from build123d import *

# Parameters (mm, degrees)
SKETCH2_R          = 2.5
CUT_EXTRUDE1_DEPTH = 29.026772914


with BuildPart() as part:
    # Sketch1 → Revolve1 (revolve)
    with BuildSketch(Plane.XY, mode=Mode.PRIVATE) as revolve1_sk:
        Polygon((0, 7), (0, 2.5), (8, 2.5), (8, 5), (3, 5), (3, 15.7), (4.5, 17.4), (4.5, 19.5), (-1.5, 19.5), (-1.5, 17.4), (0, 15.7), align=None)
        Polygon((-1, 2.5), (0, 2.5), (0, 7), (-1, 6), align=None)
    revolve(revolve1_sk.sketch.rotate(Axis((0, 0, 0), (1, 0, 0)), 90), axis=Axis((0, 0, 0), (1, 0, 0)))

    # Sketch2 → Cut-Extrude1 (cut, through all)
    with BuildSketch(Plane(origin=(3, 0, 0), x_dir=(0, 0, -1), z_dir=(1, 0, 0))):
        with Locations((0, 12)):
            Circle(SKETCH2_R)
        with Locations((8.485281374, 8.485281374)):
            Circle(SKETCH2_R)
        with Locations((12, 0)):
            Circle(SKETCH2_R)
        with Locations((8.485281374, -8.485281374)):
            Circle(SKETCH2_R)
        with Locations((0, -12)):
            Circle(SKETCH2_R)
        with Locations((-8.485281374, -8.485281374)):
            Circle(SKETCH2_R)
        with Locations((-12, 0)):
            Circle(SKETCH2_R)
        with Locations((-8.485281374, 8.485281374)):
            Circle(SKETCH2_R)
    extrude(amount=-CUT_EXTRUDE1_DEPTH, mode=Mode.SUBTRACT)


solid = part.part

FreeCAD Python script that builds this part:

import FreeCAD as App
import Part
import Sketcher
Q = App.Units.Quantity


def add_polygon(sketch, points):
    """Adds a closed chain of lines whose ends are joined by coincident constraints."""
    first, n = sketch.GeometryCount, len(points)
    for a, b in zip(points, points[1:] + points[:1]):
        sketch.addGeometry(Part.LineSegment(App.Vector(*a, 0), App.Vector(*b, 0)), False)
    for i in range(n):
        sketch.addConstraint(Sketcher.Constraint("Coincident", first + i, 2, first + (i + 1) % n, 1))

doc = App.newDocument("Part")
params = doc.addObject("Spreadsheet::Sheet", "Params")
for row, (alias, value) in enumerate([
    ("sketch1_width", "5 mm"),
    ("sketch1_width2", "6 mm"),
    ("sketch1_width3", "9 mm"),
    ("sketch1_height", "2.5 mm"),
    ("sketch1_height2", "10.7 mm"),
    ("revolution_angle", "360 deg"),
    ("sketch2_diameter", "5 mm"),
], start=1):
    params.set(f"A{row}", alias)
    params.set(f"B{row}", "=" + value)
    params.setAlias(f"B{row}", alias)

body = doc.addObject("PartDesign::Body", "Body")

# Sketch on XY plane
sketch1 = doc.addObject("Sketcher::SketchObject", "Sketch")
body.addObject(sketch1)
sketch1.AttachmentSupport = (doc.XY_Plane, [""])
sketch1.MapMode = "FlatFace"
add_polygon(sketch1, [(8, 2.5), (8, 5), (3, 5), (3, 15.7), (4.5, 17.4), (4.5, 19.5), (-1.5, 19.5), (-1.5, 17.4), (0, 15.7), (0, 7), (-1, 6), (-1, 2.5)])  # lines 0-11
sketch1.addConstraint(Sketcher.Constraint("Vertical", 0))
sketch1.addConstraint(Sketcher.Constraint("Horizontal", 1))
sketch1.addConstraint(Sketcher.Constraint("Vertical", 2))
sketch1.addConstraint(Sketcher.Constraint("Vertical", 4))
sketch1.addConstraint(Sketcher.Constraint("Horizontal", 5))
sketch1.addConstraint(Sketcher.Constraint("Vertical", 6))
sketch1.addConstraint(Sketcher.Constraint("Vertical", 8))
sketch1.addConstraint(Sketcher.Constraint("Vertical", 10))
sketch1.addConstraint(Sketcher.Constraint("Horizontal", 11))
sketch1.addConstraint(Sketcher.Constraint("PointOnObject", 7, 2, -2))
sketch1.addConstraint(Sketcher.Constraint("Horizontal", 3, 2, 6, 2))
sketch1.addConstraint(Sketcher.Constraint("Horizontal", 2, 2, 7, 2))
sketch1.addConstraint(Sketcher.Constraint("Equal", 3, 7))
sketch1.addConstraint(Sketcher.Constraint("DistanceX", 1, 2, 1, 1, Q("5 mm")))
sketch1.addConstraint(Sketcher.Constraint("DistanceX", 5, 2, 5, 1, Q("6 mm")))
sketch1.addConstraint(Sketcher.Constraint("DistanceX", 11, 1, 11, 2, Q("9 mm")))
sketch1.addConstraint(Sketcher.Constraint("Angle", 9, Q("-135 deg")))
sketch1.addConstraint(Sketcher.Constraint("DistanceY", 0, 1, 0, 2, Q("2.5 mm")))
sketch1.addConstraint(Sketcher.Constraint("DistanceY", 2, 1, 2, 2, Q("10.7 mm")))
sketch1.addConstraint(Sketcher.Constraint("DistanceY", 4, 1, 4, 2, Q("2.1 mm")))
sketch1.addConstraint(Sketcher.Constraint("DistanceY", 8, 2, 8, 1, Q("8.7 mm")))
sketch1.addConstraint(Sketcher.Constraint("DistanceY", 10, 2, 10, 1, Q("3.5 mm")))
sketch1.addConstraint(Sketcher.Constraint("DistanceY", -1, 1, 0, 2, Q("5 mm")))
sketch1.addConstraint(Sketcher.Constraint("DistanceY", -1, 1, 3, 2, Q("17.4 mm")))
sketch1.setExpression("Constraints[25]", "Params.sketch1_width")
sketch1.setExpression("Constraints[26]", "Params.sketch1_width2")
sketch1.setExpression("Constraints[27]", "Params.sketch1_width3")
sketch1.setExpression("Constraints[29]", "Params.sketch1_height")
sketch1.setExpression("Constraints[30]", "Params.sketch1_height2")
revolution = doc.addObject("PartDesign::Revolution", "Revolution")
body.addObject(revolution)
revolution.Profile = sketch1
revolution.ReferenceAxis = (sketch1, ["H_Axis"])
revolution.setExpression("Angle", "Params.revolution_angle")

# Sketch on YZ plane
sketch2 = doc.addObject("Sketcher::SketchObject", "Sketch001")
body.addObject(sketch2)
sketch2.AttachmentSupport = (doc.YZ_Plane, [""])
sketch2.MapMode = "FlatFace"
sketch2.AttachmentOffset = App.Placement(App.Vector(0, 0, 3), App.Rotation())
sketch2.addGeometry(Part.Circle(App.Vector(12, 0, 0), App.Vector(0, 0, 1), 2.5), False)
sketch2.addGeometry(Part.Circle(App.Vector(8.485281, -8.485281, 0), App.Vector(0, 0, 1), 2.5), False)
sketch2.addGeometry(Part.Circle(App.Vector(0, -12, 0), App.Vector(0, 0, 1), 2.5), False)
sketch2.addGeometry(Part.Circle(App.Vector(-8.485281, -8.485281, 0), App.Vector(0, 0, 1), 2.5), False)
sketch2.addGeometry(Part.Circle(App.Vector(-12, 0, 0), App.Vector(0, 0, 1), 2.5), False)
sketch2.addGeometry(Part.Circle(App.Vector(-8.485281, 8.485281, 0), App.Vector(0, 0, 1), 2.5), False)
sketch2.addGeometry(Part.Circle(App.Vector(0, 12, 0), App.Vector(0, 0, 1), 2.5), False)
sketch2.addGeometry(Part.Circle(App.Vector(8.485281, 8.485281, 0), App.Vector(0, 0, 1), 2.5), False)
sketch2.addConstraint(Sketcher.Constraint("Equal", 0, 1))
sketch2.addConstraint(Sketcher.Constraint("Equal", 1, 2))
sketch2.addConstraint(Sketcher.Constraint("Equal", 2, 3))
sketch2.addConstraint(Sketcher.Constraint("Equal", 3, 4))
sketch2.addConstraint(Sketcher.Constraint("Equal", 4, 5))
sketch2.addConstraint(Sketcher.Constraint("Equal", 5, 6))
sketch2.addConstraint(Sketcher.Constraint("Equal", 6, 7))
sketch2.addConstraint(Sketcher.Constraint("Symmetric", 0, 3, 4, 3, -1, 1))
sketch2.addConstraint(Sketcher.Constraint("Symmetric", 1, 3, 5, 3, -1, 1))
sketch2.addConstraint(Sketcher.Constraint("Symmetric", 2, 3, 6, 3, -1, 1))
sketch2.addConstraint(Sketcher.Constraint("Symmetric", 3, 3, 7, 3, -1, 1))
sketch2.addConstraint(Sketcher.Constraint("Symmetric", 1, 3, 3, 3, -2))
sketch2.addConstraint(Sketcher.Constraint("PointOnObject", 0, 3, -1))
sketch2.addConstraint(Sketcher.Constraint("PointOnObject", 2, 3, -2))
sketch2.addConstraint(Sketcher.Constraint("Diameter", 0, Q("5 mm")))
sketch2.addConstraint(Sketcher.Constraint("DistanceX", -1, 1, 0, 3, Q("12 mm")))
sketch2.addConstraint(Sketcher.Constraint("DistanceY", 2, 3, -1, 1, Q("12 mm")))
sketch2.addConstraint(Sketcher.Constraint("DistanceX", -1, 1, 1, 3, Q("8.485281 mm")))
sketch2.addConstraint(Sketcher.Constraint("DistanceY", 1, 3, -1, 1, Q("8.485281 mm")))
sketch2.setExpression("Constraints[14]", "Params.sketch2_diameter")
pocket1 = doc.addObject("PartDesign::Pocket", "Pocket")
body.addObject(pocket1)
pocket1.Profile = sketch2
pocket1.Type = "ThroughAll"

doc.recompute()
